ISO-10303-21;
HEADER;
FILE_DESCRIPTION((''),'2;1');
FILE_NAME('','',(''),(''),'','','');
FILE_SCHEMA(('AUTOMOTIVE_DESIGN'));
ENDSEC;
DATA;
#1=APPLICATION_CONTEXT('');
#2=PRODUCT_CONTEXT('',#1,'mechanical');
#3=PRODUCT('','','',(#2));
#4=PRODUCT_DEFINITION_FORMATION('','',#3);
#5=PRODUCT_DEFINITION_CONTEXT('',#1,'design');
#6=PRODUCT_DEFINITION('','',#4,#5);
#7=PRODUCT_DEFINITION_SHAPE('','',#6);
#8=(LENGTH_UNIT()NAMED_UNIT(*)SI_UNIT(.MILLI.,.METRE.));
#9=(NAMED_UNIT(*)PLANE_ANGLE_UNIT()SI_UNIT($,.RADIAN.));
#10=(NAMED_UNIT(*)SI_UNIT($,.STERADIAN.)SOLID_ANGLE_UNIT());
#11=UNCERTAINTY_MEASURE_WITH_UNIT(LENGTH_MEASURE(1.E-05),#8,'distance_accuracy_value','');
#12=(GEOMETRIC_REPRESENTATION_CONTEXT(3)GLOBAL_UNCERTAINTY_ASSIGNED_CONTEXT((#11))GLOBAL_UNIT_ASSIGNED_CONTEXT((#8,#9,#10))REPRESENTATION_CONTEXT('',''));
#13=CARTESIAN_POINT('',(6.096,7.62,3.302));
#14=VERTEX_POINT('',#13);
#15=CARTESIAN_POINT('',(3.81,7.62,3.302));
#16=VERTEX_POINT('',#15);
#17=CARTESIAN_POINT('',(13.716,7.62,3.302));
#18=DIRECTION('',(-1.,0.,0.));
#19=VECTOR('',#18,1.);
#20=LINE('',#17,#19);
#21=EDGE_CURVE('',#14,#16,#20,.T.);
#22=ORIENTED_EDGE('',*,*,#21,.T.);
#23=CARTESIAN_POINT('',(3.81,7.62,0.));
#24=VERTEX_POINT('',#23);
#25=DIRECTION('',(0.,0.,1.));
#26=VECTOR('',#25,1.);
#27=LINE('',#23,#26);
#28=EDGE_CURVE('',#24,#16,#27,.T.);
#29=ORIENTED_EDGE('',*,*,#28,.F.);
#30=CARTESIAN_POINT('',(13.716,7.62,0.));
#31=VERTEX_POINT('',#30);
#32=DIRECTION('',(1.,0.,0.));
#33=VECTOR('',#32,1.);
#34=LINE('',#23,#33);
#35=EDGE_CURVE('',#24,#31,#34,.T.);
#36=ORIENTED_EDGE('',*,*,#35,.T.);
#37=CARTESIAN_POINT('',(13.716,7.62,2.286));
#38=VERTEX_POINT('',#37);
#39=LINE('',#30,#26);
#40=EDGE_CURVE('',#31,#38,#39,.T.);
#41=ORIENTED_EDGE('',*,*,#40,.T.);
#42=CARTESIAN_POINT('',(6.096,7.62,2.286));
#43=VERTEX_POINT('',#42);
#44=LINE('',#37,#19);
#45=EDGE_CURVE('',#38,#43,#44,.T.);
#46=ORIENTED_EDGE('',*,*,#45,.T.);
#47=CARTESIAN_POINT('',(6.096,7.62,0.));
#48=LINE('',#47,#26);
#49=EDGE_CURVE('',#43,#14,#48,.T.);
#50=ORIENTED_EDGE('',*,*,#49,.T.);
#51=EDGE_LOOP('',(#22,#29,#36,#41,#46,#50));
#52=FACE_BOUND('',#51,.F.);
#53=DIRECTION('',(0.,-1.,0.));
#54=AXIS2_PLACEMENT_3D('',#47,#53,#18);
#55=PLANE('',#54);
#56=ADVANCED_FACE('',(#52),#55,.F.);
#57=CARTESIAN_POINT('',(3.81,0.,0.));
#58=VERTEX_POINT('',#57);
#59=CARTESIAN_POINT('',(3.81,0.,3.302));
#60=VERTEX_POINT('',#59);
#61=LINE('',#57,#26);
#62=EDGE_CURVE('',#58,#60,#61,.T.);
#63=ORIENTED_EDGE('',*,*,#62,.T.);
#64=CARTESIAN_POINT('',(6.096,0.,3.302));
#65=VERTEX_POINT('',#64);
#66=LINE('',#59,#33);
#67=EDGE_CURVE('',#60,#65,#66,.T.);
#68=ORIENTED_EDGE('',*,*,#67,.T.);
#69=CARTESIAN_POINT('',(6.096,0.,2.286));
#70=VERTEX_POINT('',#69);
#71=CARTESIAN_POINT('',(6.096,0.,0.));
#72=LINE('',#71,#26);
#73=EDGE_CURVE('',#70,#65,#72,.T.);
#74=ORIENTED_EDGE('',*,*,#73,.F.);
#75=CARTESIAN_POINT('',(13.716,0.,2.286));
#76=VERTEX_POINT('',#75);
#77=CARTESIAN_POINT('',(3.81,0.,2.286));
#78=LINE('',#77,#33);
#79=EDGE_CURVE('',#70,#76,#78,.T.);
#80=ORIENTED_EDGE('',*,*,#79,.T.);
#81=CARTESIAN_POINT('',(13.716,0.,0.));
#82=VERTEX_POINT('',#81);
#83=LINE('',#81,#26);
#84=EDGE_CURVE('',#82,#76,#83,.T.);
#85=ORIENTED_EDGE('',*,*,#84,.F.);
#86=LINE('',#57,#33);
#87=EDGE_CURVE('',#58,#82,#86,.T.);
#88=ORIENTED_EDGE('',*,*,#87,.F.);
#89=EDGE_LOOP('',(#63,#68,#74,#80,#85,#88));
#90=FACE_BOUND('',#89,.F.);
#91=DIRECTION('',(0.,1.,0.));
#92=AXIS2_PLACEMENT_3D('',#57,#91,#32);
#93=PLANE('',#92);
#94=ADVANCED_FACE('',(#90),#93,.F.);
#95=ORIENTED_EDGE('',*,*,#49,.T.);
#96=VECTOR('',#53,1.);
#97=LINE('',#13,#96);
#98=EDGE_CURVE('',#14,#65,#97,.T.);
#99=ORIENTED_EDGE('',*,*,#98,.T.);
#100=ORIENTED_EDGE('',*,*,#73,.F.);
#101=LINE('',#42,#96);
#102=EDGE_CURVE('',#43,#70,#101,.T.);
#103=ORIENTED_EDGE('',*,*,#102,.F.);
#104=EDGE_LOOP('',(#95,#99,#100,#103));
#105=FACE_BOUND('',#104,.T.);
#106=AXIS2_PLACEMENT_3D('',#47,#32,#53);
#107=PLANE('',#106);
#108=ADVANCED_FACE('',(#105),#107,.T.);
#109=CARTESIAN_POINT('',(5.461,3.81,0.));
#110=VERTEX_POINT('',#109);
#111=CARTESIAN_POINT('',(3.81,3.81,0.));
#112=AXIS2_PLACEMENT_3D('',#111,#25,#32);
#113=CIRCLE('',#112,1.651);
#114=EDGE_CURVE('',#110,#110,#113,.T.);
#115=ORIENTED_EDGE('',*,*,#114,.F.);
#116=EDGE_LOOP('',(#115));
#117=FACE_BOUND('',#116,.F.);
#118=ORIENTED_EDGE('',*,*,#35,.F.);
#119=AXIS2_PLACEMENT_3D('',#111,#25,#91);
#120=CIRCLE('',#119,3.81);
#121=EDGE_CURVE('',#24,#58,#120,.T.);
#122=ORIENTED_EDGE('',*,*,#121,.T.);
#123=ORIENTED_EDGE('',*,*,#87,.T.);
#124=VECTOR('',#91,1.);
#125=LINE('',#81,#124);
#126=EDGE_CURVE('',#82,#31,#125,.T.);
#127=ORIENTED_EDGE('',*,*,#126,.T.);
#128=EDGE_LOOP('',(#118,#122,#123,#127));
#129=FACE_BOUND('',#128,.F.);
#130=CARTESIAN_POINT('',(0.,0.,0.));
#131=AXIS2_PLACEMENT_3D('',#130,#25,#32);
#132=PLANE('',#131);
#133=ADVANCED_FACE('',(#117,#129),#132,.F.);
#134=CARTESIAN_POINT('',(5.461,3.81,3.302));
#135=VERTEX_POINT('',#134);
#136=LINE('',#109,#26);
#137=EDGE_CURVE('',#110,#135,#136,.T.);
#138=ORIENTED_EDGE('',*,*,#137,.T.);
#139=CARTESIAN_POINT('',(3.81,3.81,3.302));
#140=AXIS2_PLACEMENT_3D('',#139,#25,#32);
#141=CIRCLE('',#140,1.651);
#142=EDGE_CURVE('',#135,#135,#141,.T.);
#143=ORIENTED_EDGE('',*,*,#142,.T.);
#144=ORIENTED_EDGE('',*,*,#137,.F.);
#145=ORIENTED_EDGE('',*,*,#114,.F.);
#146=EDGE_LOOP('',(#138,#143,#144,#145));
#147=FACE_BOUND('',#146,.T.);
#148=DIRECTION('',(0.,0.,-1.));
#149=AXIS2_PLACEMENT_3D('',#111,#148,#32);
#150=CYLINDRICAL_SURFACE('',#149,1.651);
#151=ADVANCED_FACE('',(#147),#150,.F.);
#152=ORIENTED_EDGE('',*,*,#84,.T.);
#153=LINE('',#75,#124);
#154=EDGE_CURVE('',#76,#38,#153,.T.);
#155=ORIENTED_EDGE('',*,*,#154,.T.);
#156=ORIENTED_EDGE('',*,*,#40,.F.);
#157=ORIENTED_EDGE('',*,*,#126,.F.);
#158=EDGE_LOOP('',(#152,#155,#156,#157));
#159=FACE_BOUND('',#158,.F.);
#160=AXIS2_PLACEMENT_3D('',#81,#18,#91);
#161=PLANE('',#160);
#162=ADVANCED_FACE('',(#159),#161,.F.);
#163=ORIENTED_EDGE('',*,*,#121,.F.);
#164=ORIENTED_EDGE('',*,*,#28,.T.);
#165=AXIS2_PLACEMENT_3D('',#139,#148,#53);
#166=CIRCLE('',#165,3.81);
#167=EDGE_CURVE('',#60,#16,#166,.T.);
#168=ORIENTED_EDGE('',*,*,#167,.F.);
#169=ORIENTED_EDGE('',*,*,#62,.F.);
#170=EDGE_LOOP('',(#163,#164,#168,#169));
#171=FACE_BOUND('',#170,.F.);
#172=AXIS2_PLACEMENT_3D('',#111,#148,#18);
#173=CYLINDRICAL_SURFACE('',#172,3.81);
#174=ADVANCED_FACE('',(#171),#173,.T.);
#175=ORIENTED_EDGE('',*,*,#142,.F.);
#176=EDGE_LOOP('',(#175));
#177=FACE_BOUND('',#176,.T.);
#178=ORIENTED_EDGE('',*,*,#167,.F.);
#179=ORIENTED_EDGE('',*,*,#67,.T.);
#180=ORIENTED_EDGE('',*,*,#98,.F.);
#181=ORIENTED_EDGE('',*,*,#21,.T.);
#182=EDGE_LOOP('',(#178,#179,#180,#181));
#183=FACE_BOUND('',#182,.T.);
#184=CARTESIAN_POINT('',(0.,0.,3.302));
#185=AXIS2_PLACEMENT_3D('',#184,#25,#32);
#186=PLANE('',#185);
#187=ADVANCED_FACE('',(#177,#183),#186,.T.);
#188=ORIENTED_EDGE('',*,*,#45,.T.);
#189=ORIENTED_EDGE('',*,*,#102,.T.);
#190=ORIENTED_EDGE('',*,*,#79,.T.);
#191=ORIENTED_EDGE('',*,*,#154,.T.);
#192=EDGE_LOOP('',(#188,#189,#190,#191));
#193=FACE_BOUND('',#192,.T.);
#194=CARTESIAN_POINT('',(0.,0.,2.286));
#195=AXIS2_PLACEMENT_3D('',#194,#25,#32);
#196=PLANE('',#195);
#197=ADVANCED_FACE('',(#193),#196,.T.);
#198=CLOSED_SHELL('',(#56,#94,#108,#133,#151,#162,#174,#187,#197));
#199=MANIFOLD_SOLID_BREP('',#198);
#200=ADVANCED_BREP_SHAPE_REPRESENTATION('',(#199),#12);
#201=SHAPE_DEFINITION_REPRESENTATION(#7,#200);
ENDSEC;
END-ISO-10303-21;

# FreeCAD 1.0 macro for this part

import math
import FreeCAD as App
import Part
import Sketcher
Q = App.Units.Quantity


def add_polygon(sketch, points):
    """Adds a closed chain of lines whose ends are joined by coincident constraints."""
    first, n = sketch.GeometryCount, len(points)
    for a, b in zip(points, points[1:] + points[:1]):
        sketch.addGeometry(Part.LineSegment(App.Vector(*a, 0), App.Vector(*b, 0)), False)
    for i in range(n):
        sketch.addConstraint(Sketcher.Constraint("Coincident", first + i, 2, first + (i + 1) % n, 1))

doc = App.newDocument("Part")
body = doc.addObject("PartDesign::Body", "Body")

# Sketch on XY plane
sketch1 = doc.addObject("Sketcher::SketchObject", "Sketch")
body.addObject(sketch1)
sketch1.AttachmentSupport = (doc.XY_Plane, [""])
sketch1.MapMode = "FlatFace"
sketch1.addGeometry([
    Part.ArcOfCircle(Part.Circle(App.Vector(3.81, 3.81, 0), App.Vector(0, 0, 1), 3.81), math.radians(90), math.radians(270)),  # 0
    Part.LineSegment(App.Vector(3.81, 0, 0), App.Vector(6.096, 0, 0)),  # 1
    Part.LineSegment(App.Vector(6.096, 0, 0), App.Vector(6.096, 7.62, 0)),  # 2
    Part.LineSegment(App.Vector(6.096, 7.62, 0), App.Vector(3.81, 7.62, 0)),  # 3
    Part.Circle(App.Vector(3.81, 3.81, 0), App.Vector(0, 0, 1), 1.651),  # 4
], False)
sketch1.addConstraint([
    Sketcher.Constraint("Tangent", 0, 2, 1, 1),
    Sketcher.Constraint("Coincident", 1, 2, 2, 1),
    Sketcher.Constraint("Coincident", 2, 2, 3, 1),
    Sketcher.Constraint("Tangent", 3, 2, 0, 1),
    Sketcher.Constraint("Horizontal", 1),
    Sketcher.Constraint("Vertical", 2),
    Sketcher.Constraint("Horizontal", 3),
    Sketcher.Constraint("Coincident", 4, 3, 0, 3),
    Sketcher.Constraint("PointOnObject", 0, 2, -1),
    Sketcher.Constraint("Diameter", 4, Q("0.13 in")),
    Sketcher.Constraint("Radius", 0, Q("0.15 in")),
    Sketcher.Constraint("DistanceX", -1, 1, 0, 3, Q("0.15 in")),
    Sketcher.Constraint("DistanceX", 1, 1, 1, 2, Q("0.09 in")),
])
pad1 = doc.addObject("PartDesign::Pad", "Pad")
body.addObject(pad1)
pad1.Profile = sketch1
pad1.Length = Q("0.13 in")

# Sketch on XY plane
sketch2 = doc.addObject("Sketcher::SketchObject", "Sketch001")
body.addObject(sketch2)
sketch2.AttachmentSupport = (doc.XY_Plane, [""])
sketch2.MapMode = "FlatFace"
add_polygon(sketch2, [(6.096, 7.62), (6.096, 0), (13.716, 0), (13.716, 7.62)])  # lines 0-3
sketch2.addConstraint([
    Sketcher.Constraint("Vertical", 0),
    Sketcher.Constraint("Horizontal", 1),
    Sketcher.Constraint("Vertical", 2),
    Sketcher.Constraint("Horizontal", 3),
    Sketcher.Constraint("PointOnObject", 0, 2, -1),
    Sketcher.Constraint("Equal", 3, 0),
    Sketcher.Constraint("DistanceX", 1, 1, 1, 2, Q("0.3 in")),
    Sketcher.Constraint("DistanceX", -1, 1, 1, 2, Q("0.54 in")),
])
pad2 = doc.addObject("PartDesign::Pad", "Pad001")
body.addObject(pad2)
pad2.Profile = sketch2
pad2.Length = Q("0.09 in")

doc.recompute()
